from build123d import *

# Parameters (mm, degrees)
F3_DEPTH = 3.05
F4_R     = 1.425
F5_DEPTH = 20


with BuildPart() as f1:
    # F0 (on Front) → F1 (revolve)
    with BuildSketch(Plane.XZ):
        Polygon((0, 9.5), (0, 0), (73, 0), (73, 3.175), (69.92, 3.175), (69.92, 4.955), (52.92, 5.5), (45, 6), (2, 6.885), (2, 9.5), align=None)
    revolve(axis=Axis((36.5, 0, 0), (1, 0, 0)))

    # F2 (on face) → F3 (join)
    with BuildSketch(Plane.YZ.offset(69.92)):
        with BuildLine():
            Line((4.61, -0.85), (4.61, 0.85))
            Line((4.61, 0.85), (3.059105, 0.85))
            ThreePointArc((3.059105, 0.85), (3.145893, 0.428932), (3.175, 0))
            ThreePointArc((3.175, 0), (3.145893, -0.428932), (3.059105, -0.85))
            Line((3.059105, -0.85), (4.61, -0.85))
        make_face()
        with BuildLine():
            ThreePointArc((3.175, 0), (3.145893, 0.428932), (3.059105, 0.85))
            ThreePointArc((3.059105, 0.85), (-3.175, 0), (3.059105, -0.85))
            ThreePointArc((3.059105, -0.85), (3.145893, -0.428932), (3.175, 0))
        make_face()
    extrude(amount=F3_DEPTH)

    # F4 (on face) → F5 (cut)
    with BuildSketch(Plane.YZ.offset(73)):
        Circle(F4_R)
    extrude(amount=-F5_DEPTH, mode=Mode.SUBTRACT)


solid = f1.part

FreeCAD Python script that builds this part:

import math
import FreeCAD as App
import Part
import Sketcher

V = App.Vector
Q = App.Units.Quantity

doc = App.newDocument("Part")
params = doc.addObject("Spreadsheet::Sheet", "Params")
for row, (alias, value) in enumerate([
    ("sketch1_width", "73 mm"),
    ("sketch1_width2", "2 mm"),
    ("sketch1_height", "9.5 mm"),
    ("sketch1_width3", "3.08 mm"),
    ("sketch1_height2", "1.78 mm"),
    ("revolution_angle", "360 deg"),
    ("sketch2_height", "1.7 mm"),
    ("pad1_length", "3.05 mm"),
    ("sketch3_diameter", "2.85 mm"),
    ("pocket1_length", "20 mm"),
], start=1):
    params.set(f"A{row}", alias)
    params.set(f"B{row}", "=" + value)
    params.setAlias(f"B{row}", alias)

body = doc.addObject("PartDesign::Body", "Body")

sketch1 = body.newObject("Sketcher::SketchObject", "Sketch")
sketch1.AttachmentSupport = (doc.getObject("XZ_Plane"), [""])
sketch1.MapMode = "FlatFace"
sketch1.addGeometry(Part.LineSegment(V(0, 9.5, 0), V(0, 0, 0)), False)
sketch1.addGeometry(Part.LineSegment(V(0, 0, 0), V(73, 0, 0)), False)
sketch1.addGeometry(Part.LineSegment(V(73, 0, 0), V(73, 3.2, 0)), False)
sketch1.addGeometry(Part.LineSegment(V(73, 3.2, 0), V(69.9, 3.2, 0)), False)
sketch1.addGeometry(Part.LineSegment(V(69.9, 3.2, 0), V(69.9, 5, 0)), False)
sketch1.addGeometry(Part.LineSegment(V(69.9, 5, 0), V(52.9, 5.5, 0)), False)
sketch1.addGeometry(Part.LineSegment(V(52.9, 5.5, 0), V(45, 6, 0)), False)
sketch1.addGeometry(Part.LineSegment(V(45, 6, 0), V(2, 6.9, 0)), False)
sketch1.addGeometry(Part.LineSegment(V(2, 6.9, 0), V(2, 9.5, 0)), False)
sketch1.addGeometry(Part.LineSegment(V(2, 9.5, 0), V(0, 9.5, 0)), False)
sketch1.addConstraint(Sketcher.Constraint("Coincident", 0, 2, 1, 1))
sketch1.addConstraint(Sketcher.Constraint("Coincident", 1, 2, 2, 1))
sketch1.addConstraint(Sketcher.Constraint("Coincident", 2, 2, 3, 1))
sketch1.addConstraint(Sketcher.Constraint("Coincident", 3, 2, 4, 1))
sketch1.addConstraint(Sketcher.Constraint("Coincident", 4, 2, 5, 1))
sketch1.addConstraint(Sketcher.Constraint("Coincident", 5, 2, 6, 1))
sketch1.addConstraint(Sketcher.Constraint("Coincident", 6, 2, 7, 1))
sketch1.addConstraint(Sketcher.Constraint("Coincident", 7, 2, 8, 1))
sketch1.addConstraint(Sketcher.Constraint("Coincident", 8, 2, 9, 1))
sketch1.addConstraint(Sketcher.Constraint("Coincident", 9, 2, 0, 1))
sketch1.addConstraint(Sketcher.Constraint("Vertical", 0))
sketch1.addConstraint(Sketcher.Constraint("Horizontal", 1))
sketch1.addConstraint(Sketcher.Constraint("Vertical", 2))
sketch1.addConstraint(Sketcher.Constraint("Horizontal", 3))
sketch1.addConstraint(Sketcher.Constraint("Vertical", 4))
sketch1.addConstraint(Sketcher.Constraint("Vertical", 8))
sketch1.addConstraint(Sketcher.Constraint("Horizontal", 9))
sketch1.addConstraint(Sketcher.Constraint("Coincident", 0, 2, -1, 1))
sketch1.addConstraint(Sketcher.Constraint("DistanceX", 1, 1, 1, 2, Q("73 mm")))
sketch1.addConstraint(Sketcher.Constraint("DistanceX", 9, 2, 9, 1, Q("2 mm")))
sketch1.addConstraint(Sketcher.Constraint("DistanceY", 0, 2, 0, 1, Q("9.5 mm")))
sketch1.addConstraint(Sketcher.Constraint("DistanceX", -1, 1, 6, 2, Q("45 mm")))
sketch1.addConstraint(Sketcher.Constraint("DistanceY", -1, 1, 6, 2, Q("6 mm")))
sketch1.addConstraint(Sketcher.Constraint("DistanceX", 5, 2, 4, 2, Q("17 mm")))
sketch1.addConstraint(Sketcher.Constraint("DistanceY", 5, 2, 8, 2, Q("4 mm")))
sketch1.addConstraint(Sketcher.Constraint("DistanceX", 3, 2, 3, 1, Q("3.08 mm")))
sketch1.addConstraint(Sketcher.Constraint("DistanceY", 4, 1, 4, 2, Q("1.78 mm")))
sketch1.addConstraint(Sketcher.Constraint("DistanceY", 2, 1, 2, 2, Q("3.175 mm")))
sketch1.addConstraint(Sketcher.Constraint("DistanceY", 8, 1, 8, 2, Q("2.615 mm")))
sketch1.setExpression("Constraints[18]", "Params.sketch1_width")
sketch1.setExpression("Constraints[19]", "Params.sketch1_width2")
sketch1.setExpression("Constraints[20]", "Params.sketch1_height")
sketch1.setExpression("Constraints[25]", "Params.sketch1_width3")
sketch1.setExpression("Constraints[26]", "Params.sketch1_height2")
revolution = body.newObject("PartDesign::Revolution", "Revolution")
revolution.Profile = sketch1
revolution.ReferenceAxis = (sketch1, ["H_Axis"])
revolution.setExpression("Angle", "Params.revolution_angle")

sketch2 = body.newObject("Sketcher::SketchObject", "Sketch001")
sketch2.AttachmentSupport = (doc.getObject("YZ_Plane"), [""])
sketch2.MapMode = "FlatFace"
sketch2.AttachmentOffset = App.Placement(V(0, 0, 69.92), App.Rotation())
sketch2.addGeometry(Part.LineSegment(V(4.6, -0.8, 0), V(4.6, 0.8, 0)), False)
sketch2.addGeometry(Part.LineSegment(V(4.6, 0.8, 0), V(3.1, 0.8, 0)), False)
sketch2.addGeometry(Part.ArcOfCircle(Part.Circle(V(0, 0, 0), V(0, 0, 1), 3.2), math.radians(16), math.radians(344)), False)
sketch2.addGeometry(Part.LineSegment(V(3.1, -0.8, 0), V(4.6, -0.8, 0)), False)
sketch2.addConstraint(Sketcher.Constraint("Coincident", 0, 2, 1, 1))
sketch2.addConstraint(Sketcher.Constraint("Coincident", 1, 2, 2, 1))
sketch2.addConstraint(Sketcher.Constraint("Coincident", 2, 2, 3, 1))
sketch2.addConstraint(Sketcher.Constraint("Coincident", 3, 2, 0, 1))
sketch2.addConstraint(Sketcher.Constraint("Vertical", 0))
sketch2.addConstraint(Sketcher.Constraint("Horizontal", 1))
sketch2.addConstraint(Sketcher.Constraint("Horizontal", 3))
sketch2.addConstraint(Sketcher.Constraint("Coincident", 2, 3, -1, 1))
sketch2.addConstraint(Sketcher.Constraint("Vertical", 1, 2, 2, 2))
sketch2.addConstraint(Sketcher.Constraint("DistanceY", 0, 1, 0, 2, Q("1.7 mm")))
sketch2.addConstraint(Sketcher.Constraint("Radius", 2, Q("3.175 mm")))
sketch2.addConstraint(Sketcher.Constraint("DistanceX", -1, 1, 0, 2, Q("4.61 mm")))
sketch2.setExpression("Constraints[9]", "Params.sketch2_height")
pad1 = body.newObject("PartDesign::Pad", "Pad")
pad1.Profile = sketch2
pad1.setExpression("Length", "Params.pad1_length")

sketch3 = body.newObject("Sketcher::SketchObject", "Sketch002")
sketch3.AttachmentSupport = (doc.getObject("YZ_Plane"), [""])
sketch3.MapMode = "FlatFace"
sketch3.AttachmentOffset = App.Placement(V(0, 0, 73), App.Rotation())
sketch3.addGeometry(Part.Circle(V(0, 0, 0), V(0, 0, 1), 1.4), False)
sketch3.addConstraint(Sketcher.Constraint("Coincident", 0, 3, -1, 1))
sketch3.addConstraint(Sketcher.Constraint("Diameter", 0, Q("2.85 mm")))
sketch3.setExpression("Constraints[1]", "Params.sketch3_diameter")
pocket1 = body.newObject("PartDesign::Pocket", "Pocket")
pocket1.Profile = sketch3
pocket1.setExpression("Length", "Params.pocket1_length")

doc.recompute()
